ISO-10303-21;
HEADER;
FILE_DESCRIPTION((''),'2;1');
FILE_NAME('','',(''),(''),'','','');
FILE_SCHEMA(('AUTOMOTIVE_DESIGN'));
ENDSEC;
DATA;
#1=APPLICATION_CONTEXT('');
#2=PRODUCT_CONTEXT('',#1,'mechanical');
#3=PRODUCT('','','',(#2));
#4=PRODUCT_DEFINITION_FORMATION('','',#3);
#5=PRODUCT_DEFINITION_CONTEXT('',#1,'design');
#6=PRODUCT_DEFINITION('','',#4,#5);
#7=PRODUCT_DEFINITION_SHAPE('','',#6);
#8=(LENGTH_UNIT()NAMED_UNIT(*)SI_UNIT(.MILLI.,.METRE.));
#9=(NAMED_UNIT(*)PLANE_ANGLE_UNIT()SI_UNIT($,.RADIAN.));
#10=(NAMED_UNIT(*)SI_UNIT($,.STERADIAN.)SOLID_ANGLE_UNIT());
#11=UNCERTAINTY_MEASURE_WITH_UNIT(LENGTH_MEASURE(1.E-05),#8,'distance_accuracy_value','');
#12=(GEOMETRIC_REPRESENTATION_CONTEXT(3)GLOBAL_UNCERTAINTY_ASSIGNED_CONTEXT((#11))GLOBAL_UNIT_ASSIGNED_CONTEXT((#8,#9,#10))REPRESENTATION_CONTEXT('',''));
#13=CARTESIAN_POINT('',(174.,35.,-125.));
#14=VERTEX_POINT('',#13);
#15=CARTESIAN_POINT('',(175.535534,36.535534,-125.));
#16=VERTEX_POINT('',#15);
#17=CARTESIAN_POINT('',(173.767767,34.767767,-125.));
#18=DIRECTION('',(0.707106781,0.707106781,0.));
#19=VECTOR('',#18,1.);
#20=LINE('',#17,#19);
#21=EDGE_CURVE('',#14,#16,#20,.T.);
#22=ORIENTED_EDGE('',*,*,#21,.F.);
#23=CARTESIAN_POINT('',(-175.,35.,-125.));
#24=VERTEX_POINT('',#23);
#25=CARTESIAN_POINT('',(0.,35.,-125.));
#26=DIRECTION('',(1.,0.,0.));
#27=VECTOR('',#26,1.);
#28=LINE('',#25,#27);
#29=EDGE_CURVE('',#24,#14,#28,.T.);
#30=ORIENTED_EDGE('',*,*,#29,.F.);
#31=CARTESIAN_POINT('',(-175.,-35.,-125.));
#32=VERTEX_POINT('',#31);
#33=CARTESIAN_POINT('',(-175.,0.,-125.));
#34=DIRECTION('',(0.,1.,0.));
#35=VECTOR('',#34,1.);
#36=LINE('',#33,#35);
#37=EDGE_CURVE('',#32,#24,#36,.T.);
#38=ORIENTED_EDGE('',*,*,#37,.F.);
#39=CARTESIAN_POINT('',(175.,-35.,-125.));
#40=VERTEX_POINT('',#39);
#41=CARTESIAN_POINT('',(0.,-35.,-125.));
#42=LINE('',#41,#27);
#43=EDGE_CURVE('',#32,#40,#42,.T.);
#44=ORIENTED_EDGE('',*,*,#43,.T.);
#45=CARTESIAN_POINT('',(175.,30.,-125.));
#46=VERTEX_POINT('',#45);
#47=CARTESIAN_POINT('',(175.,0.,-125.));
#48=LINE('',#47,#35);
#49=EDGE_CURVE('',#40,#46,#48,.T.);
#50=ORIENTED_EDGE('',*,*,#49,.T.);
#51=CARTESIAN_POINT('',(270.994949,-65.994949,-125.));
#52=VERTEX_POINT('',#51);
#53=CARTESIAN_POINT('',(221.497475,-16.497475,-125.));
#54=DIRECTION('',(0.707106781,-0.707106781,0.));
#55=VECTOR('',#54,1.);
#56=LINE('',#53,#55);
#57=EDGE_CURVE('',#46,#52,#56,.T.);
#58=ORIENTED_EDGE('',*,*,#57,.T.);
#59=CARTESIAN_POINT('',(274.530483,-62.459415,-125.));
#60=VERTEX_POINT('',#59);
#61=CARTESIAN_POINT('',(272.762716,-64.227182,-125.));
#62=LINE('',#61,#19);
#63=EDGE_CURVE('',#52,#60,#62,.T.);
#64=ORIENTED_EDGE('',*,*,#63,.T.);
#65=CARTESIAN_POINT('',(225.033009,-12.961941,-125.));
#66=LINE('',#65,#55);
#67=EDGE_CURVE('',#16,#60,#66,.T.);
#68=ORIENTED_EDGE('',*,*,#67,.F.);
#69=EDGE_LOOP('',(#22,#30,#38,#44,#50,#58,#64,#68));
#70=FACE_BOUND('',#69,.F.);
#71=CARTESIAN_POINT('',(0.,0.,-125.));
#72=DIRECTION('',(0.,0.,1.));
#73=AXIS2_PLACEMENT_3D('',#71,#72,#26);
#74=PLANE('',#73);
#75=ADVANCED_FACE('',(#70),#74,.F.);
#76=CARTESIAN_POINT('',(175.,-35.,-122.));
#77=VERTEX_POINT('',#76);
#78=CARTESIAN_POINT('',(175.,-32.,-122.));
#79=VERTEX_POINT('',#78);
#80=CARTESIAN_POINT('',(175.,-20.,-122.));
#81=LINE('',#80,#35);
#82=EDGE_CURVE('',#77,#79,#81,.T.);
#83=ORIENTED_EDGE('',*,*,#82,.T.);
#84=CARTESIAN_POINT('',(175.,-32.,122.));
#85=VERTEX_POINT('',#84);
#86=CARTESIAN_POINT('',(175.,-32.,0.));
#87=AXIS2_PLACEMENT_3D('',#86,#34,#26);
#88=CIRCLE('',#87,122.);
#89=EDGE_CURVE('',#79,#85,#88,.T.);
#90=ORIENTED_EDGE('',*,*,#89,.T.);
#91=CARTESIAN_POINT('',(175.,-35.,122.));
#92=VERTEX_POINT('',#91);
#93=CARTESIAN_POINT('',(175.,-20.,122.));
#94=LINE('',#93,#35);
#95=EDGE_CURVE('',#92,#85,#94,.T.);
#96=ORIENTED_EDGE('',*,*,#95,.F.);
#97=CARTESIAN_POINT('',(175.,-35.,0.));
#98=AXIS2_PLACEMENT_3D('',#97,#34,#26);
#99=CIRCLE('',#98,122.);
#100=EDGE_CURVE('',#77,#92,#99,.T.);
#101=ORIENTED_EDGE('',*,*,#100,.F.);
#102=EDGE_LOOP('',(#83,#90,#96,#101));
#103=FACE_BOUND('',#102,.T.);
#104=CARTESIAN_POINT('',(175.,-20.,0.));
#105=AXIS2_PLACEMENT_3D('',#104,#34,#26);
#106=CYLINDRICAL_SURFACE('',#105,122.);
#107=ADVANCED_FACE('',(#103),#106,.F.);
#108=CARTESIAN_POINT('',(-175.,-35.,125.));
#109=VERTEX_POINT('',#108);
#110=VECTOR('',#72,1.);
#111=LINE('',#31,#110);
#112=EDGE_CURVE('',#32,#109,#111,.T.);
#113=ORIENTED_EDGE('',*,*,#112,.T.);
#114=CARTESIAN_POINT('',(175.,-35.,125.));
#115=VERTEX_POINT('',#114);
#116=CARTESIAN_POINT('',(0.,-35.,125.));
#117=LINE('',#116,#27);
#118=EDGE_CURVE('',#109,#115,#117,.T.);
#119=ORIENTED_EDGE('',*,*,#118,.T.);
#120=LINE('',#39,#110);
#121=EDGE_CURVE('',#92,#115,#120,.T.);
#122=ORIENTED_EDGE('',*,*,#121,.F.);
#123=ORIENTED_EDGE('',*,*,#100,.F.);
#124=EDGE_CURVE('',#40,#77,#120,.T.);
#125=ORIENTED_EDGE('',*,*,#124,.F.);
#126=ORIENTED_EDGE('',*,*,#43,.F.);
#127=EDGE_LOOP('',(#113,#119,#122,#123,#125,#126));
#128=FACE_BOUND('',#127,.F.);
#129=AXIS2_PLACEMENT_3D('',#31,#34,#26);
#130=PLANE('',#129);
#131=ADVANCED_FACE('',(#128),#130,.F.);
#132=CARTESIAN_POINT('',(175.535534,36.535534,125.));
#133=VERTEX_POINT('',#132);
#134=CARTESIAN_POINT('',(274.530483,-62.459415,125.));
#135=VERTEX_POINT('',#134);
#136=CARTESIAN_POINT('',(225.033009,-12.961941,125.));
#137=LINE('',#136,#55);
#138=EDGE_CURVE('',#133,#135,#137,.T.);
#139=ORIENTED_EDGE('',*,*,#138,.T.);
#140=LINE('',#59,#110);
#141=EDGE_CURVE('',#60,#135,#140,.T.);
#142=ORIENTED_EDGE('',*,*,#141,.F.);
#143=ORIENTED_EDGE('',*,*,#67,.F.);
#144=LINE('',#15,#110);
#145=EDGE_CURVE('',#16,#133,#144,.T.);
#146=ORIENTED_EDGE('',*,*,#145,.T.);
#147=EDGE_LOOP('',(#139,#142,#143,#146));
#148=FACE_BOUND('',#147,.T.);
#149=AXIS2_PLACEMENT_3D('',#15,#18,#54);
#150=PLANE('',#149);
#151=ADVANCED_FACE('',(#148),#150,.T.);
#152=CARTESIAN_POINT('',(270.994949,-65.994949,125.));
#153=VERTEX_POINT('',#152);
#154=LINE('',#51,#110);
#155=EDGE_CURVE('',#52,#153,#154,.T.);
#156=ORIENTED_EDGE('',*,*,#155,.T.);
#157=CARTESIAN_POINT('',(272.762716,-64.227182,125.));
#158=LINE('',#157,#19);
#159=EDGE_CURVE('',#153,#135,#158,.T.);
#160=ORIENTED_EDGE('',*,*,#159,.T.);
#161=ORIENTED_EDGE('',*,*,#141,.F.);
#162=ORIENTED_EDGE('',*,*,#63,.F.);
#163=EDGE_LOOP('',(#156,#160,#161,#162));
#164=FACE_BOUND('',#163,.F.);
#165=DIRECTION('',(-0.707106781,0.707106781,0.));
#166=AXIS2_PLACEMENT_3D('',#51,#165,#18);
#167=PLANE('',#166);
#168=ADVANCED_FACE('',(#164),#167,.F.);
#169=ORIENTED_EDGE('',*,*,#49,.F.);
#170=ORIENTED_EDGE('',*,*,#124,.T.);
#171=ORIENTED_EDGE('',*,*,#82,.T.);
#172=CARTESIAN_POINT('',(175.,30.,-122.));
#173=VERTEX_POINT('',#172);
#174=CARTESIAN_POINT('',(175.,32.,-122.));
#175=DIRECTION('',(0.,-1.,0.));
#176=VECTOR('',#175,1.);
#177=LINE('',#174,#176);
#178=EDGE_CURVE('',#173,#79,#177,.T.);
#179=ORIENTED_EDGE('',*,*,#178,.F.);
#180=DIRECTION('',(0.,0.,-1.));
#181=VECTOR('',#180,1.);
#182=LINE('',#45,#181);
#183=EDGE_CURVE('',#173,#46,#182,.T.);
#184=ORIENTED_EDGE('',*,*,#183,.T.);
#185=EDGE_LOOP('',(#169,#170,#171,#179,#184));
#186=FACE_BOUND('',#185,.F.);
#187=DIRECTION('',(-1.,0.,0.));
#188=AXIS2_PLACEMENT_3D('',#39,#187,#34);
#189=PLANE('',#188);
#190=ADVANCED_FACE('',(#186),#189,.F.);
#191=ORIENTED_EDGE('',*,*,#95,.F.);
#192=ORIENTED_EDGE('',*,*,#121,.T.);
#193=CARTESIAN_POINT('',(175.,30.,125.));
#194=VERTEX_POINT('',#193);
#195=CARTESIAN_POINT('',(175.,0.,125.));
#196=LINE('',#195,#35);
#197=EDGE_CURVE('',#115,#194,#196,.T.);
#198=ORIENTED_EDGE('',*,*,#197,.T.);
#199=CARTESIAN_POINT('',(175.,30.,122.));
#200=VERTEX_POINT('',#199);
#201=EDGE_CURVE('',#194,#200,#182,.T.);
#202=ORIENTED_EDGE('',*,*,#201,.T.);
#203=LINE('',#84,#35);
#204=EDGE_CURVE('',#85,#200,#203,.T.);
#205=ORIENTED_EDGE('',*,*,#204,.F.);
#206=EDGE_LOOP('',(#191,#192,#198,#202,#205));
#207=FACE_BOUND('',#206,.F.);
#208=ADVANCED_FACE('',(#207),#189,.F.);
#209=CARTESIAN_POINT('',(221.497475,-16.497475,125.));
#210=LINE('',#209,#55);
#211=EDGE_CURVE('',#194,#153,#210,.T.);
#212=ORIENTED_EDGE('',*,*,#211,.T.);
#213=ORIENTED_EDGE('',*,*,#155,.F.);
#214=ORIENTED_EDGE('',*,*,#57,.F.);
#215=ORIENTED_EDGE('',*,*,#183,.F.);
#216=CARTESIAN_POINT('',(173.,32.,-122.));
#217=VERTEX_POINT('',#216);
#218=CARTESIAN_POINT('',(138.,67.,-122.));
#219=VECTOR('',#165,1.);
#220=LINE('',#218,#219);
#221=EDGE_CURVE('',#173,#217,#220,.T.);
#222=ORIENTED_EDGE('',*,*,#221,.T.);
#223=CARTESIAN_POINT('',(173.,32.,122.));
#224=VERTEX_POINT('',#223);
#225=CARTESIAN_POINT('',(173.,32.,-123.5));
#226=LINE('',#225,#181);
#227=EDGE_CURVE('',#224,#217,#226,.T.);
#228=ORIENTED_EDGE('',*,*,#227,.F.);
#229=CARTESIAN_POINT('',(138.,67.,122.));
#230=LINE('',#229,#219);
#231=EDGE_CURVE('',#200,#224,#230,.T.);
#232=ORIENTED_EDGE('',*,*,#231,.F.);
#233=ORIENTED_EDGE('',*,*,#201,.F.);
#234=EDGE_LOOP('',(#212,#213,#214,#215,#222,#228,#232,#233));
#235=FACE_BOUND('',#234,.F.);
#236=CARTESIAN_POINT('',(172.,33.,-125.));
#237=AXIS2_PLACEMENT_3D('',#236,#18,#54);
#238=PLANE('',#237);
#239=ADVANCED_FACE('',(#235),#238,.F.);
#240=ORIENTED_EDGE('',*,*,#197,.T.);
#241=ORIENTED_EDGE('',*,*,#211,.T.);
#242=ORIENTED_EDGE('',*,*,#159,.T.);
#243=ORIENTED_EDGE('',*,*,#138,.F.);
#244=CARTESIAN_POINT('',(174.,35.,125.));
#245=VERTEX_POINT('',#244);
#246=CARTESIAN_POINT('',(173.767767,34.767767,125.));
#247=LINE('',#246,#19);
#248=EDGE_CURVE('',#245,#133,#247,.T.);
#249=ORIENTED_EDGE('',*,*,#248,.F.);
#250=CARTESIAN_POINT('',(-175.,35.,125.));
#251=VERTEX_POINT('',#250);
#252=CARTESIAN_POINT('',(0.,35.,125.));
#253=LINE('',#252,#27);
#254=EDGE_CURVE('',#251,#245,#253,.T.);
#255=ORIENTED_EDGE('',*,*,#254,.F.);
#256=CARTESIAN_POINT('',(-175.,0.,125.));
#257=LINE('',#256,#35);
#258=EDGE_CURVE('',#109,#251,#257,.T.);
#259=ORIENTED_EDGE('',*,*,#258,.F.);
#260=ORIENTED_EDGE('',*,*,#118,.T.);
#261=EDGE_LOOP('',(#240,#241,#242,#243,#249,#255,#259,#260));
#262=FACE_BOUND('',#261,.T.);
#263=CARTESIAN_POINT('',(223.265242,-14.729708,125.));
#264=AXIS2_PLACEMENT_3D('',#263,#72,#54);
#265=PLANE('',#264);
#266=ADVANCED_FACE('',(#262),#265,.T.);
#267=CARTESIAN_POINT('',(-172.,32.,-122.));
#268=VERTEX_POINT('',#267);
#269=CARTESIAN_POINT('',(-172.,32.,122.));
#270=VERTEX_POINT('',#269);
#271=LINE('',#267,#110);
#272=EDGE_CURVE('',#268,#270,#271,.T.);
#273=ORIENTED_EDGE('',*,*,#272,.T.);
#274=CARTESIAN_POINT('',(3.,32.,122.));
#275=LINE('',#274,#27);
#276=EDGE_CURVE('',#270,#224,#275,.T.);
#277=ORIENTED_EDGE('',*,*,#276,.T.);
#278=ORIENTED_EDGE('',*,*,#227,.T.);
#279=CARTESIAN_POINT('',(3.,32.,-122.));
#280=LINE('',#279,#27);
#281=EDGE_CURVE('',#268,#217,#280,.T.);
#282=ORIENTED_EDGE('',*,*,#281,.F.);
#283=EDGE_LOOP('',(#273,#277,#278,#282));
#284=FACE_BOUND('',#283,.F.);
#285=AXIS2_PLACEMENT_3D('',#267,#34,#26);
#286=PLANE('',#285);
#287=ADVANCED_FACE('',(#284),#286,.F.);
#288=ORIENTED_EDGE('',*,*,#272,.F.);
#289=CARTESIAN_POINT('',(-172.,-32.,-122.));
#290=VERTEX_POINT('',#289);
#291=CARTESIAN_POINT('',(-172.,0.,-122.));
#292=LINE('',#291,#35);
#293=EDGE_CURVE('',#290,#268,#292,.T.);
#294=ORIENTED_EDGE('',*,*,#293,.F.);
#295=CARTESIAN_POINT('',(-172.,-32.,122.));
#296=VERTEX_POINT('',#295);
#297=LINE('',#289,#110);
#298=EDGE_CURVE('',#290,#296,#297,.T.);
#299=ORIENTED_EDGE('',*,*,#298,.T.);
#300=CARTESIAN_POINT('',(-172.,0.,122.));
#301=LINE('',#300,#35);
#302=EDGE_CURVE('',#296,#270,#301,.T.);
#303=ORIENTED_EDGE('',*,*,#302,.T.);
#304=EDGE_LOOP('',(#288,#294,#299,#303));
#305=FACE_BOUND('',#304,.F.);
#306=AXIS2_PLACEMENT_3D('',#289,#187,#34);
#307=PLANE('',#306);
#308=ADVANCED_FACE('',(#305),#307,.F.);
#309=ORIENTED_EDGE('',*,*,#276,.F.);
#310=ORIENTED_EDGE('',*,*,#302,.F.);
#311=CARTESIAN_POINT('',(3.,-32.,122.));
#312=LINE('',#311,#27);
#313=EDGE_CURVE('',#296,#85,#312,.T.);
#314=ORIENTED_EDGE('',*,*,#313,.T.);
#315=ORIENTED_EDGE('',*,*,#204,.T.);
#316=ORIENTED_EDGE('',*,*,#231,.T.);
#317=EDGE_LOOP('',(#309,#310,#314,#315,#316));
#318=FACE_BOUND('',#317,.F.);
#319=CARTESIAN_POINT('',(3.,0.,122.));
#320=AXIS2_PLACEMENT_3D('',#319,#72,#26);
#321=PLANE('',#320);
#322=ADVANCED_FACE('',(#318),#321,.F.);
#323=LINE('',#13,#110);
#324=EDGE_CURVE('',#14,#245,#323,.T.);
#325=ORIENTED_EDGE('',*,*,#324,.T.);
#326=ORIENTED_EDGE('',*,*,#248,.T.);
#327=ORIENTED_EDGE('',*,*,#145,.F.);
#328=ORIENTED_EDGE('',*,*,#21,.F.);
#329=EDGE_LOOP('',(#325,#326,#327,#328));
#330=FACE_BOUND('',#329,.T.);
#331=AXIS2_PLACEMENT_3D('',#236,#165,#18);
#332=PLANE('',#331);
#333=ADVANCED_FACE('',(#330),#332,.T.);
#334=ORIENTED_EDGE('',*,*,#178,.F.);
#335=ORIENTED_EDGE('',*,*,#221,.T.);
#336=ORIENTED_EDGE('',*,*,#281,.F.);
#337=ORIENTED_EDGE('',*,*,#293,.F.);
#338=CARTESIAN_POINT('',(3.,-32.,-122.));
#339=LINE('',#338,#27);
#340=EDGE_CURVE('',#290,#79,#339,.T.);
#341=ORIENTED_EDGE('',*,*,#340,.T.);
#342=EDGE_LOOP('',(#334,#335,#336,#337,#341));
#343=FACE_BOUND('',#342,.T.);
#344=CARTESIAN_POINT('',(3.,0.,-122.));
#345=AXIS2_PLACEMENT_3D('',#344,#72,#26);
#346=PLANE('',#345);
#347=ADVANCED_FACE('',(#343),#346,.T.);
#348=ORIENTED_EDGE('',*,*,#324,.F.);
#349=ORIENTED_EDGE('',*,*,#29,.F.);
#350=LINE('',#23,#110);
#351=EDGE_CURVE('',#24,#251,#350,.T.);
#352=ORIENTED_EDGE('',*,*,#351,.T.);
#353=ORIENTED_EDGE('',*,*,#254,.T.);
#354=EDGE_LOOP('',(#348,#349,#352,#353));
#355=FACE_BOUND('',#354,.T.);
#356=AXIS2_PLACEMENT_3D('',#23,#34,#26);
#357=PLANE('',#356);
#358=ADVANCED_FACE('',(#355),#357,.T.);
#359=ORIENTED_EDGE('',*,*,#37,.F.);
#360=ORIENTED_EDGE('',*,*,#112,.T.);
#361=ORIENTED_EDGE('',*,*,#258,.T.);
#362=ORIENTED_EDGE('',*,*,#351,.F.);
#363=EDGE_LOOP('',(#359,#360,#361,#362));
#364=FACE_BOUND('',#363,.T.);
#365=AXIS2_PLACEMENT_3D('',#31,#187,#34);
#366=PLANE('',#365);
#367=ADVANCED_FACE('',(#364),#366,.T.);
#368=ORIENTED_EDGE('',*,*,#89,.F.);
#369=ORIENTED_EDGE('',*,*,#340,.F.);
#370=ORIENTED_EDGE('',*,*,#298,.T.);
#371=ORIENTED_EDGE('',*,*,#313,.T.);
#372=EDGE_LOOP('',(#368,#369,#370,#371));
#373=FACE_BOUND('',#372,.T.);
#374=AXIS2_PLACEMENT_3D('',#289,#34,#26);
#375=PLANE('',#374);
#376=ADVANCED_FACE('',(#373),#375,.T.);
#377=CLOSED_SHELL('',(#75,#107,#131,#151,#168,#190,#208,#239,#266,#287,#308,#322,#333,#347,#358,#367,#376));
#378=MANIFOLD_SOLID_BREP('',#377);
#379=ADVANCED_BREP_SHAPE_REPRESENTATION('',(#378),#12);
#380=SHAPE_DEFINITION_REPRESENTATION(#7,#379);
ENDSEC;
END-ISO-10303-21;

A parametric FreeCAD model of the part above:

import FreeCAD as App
import Part
import Sketcher

V = App.Vector

doc = App.newDocument("Part")
body = doc.addObject("PartDesign::Body", "Body")

sketch1 = body.newObject("Sketcher::SketchObject", "Sketch")
sketch1.AttachmentSupport = (doc.getObject("XY_Plane"), [""])
sketch1.MapMode = "FlatFace"
sketch1.addGeometry([
    Part.LineSegment(V(0, 5, 0), V(0, 0, 0)),
    Part.LineSegment(V(0, 0, 0), V(140, 0, 0)),
    Part.LineSegment(V(140, 0, 0), V(140, 5, 0)),
    Part.LineSegment(V(140, 5, 0), V(0, 5, 0)),
], False)
sketch1.addConstraint([
    Sketcher.Constraint("Coincident", 0, 2, 1, 1),
    Sketcher.Constraint("Coincident", 1, 2, 2, 1),
    Sketcher.Constraint("Coincident", 2, 2, 3, 1),
    Sketcher.Constraint("Coincident", 3, 2, 0, 1),
    Sketcher.Constraint("Vertical", 0),
    Sketcher.Constraint("Horizontal", 1),
    Sketcher.Constraint("Vertical", 2),
    Sketcher.Constraint("Horizontal", 3),
    Sketcher.Constraint("Coincident", 0, 2, -1, 1),
    Sketcher.Constraint("DistanceX", 1, 1, 1, 2, 140.0),
    Sketcher.Constraint("DistanceY", 0, 2, 0, 1, 5.0),
])
pad1 = body.newObject("PartDesign::Pad", "Pad")
pad1.Profile = sketch1
pad1.Length = 250
body2 = doc.addObject("PartDesign::Body", "Body001")
doc.recompute()

body.Placement = App.Placement(V(172, 33, -125), App.Rotation(V(0, 0, 1), 315))
boolean = body2.newObject("PartDesign::Boolean", "Boolean")
boolean.Type = "Fuse"
boolean.addObjects([body])
body3 = doc.addObject("PartDesign::Body", "Body002")

sketch2 = body3.newObject("Sketcher::SketchObject", "Sketch001")
sketch2.AttachmentSupport = (doc.getObject("XY_Plane002"), [""])
sketch2.MapMode = "FlatFace"
sketch2.addGeometry(Part.Circle(V(0, 0, 0), V(0, 0, 1), 122), False)
sketch2.addConstraint([
    Sketcher.Constraint("Coincident", 0, 3, -1, 1),
    Sketcher.Constraint("Diameter", 0, 244.0),
])
pad2 = body3.newObject("PartDesign::Pad", "Pad001")
pad2.Profile = sketch2
pad2.Length = 20
body4 = doc.addObject("PartDesign::Body", "Body003")
doc.recompute()

body3.Placement = App.Placement(V(0, 0, 0), App.Rotation(V(1, 0, 0), 90))
boolean2 = body4.newObject("PartDesign::Boolean", "Boolean001")
boolean2.Type = "Fuse"
boolean2.addObjects([body3])
body5 = doc.addObject("PartDesign::Body", "Body004")
doc.recompute()

body4.Placement = App.Placement(V(175, -20, 0), App.Rotation(V(0, 0, 1), 0))
boolean3 = body5.newObject("PartDesign::Boolean", "Boolean002")
boolean3.Type = "Fuse"
boolean3.addObjects([body4])
body6 = doc.addObject("PartDesign::Body", "Body005")

sketch3 = body6.newObject("Sketcher::SketchObject", "Sketch002")
sketch3.AttachmentSupport = (doc.getObject("XY_Plane005"), [""])
sketch3.MapMode = "FlatFace"
sketch3.AttachmentOffset = App.Placement(V(0, 0, -122), App.Rotation())
sketch3.addGeometry([
    Part.LineSegment(V(-172, 32, 0), V(-172, -32, 0)),
    Part.LineSegment(V(-172, -32, 0), V(178, -32, 0)),
    Part.LineSegment(V(178, -32, 0), V(178, 32, 0)),
    Part.LineSegment(V(178, 32, 0), V(-172, 32, 0)),
], False)
sketch3.addConstraint([
    Sketcher.Constraint("Coincident", 0, 2, 1, 1),
    Sketcher.Constraint("Coincident", 1, 2, 2, 1),
    Sketcher.Constraint("Coincident", 2, 2, 3, 1),
    Sketcher.Constraint("Coincident", 3, 2, 0, 1),
    Sketcher.Constraint("Vertical", 0),
    Sketcher.Constraint("Horizontal", 1),
    Sketcher.Constraint("Vertical", 2),
    Sketcher.Constraint("Horizontal", 3),
    Sketcher.Constraint("DistanceX", 1, 1, 1, 2, 350.0),
    Sketcher.Constraint("DistanceY", 0, 2, 0, 1, 64.0),
    Sketcher.Constraint("DistanceX", 0, 2, -1, 1, 172.0),
    Sketcher.Constraint("DistanceY", 0, 2, -1, 1, 32.0),
])
pad3 = body6.newObject("PartDesign::Pad", "Pad002")
pad3.Profile = sketch3
pad3.Length = 244
body7 = doc.addObject("PartDesign::Body", "Body006")

sketch4 = body7.newObject("Sketcher::SketchObject", "Sketch003")
sketch4.AttachmentSupport = (doc.getObject("XY_Plane006"), [""])
sketch4.MapMode = "FlatFace"
sketch4.AttachmentOffset = App.Placement(V(0, 0, -125), App.Rotation())
sketch4.addGeometry([
    Part.LineSegment(V(-175, 35, 0), V(-175, -35, 0)),
    Part.LineSegment(V(-175, -35, 0), V(175, -35, 0)),
    Part.LineSegment(V(175, -35, 0), V(175, 35, 0)),
    Part.LineSegment(V(175, 35, 0), V(-175, 35, 0)),
], False)
sketch4.addConstraint([
    Sketcher.Constraint("Coincident", 0, 2, 1, 1),
    Sketcher.Constraint("Coincident", 1, 2, 2, 1),
    Sketcher.Constraint("Coincident", 2, 2, 3, 1),
    Sketcher.Constraint("Coincident", 3, 2, 0, 1),
    Sketcher.Constraint("Vertical", 0),
    Sketcher.Constraint("Horizontal", 1),
    Sketcher.Constraint("Vertical", 2),
    Sketcher.Constraint("Horizontal", 3),
    Sketcher.Constraint("Symmetric", 0, 2, 2, 2, -1, 1),
    Sketcher.Constraint("DistanceX", 1, 1, 1, 2, 350.0),
    Sketcher.Constraint("DistanceY", 0, 2, 0, 1, 70.0),
])
pad4 = body7.newObject("PartDesign::Pad", "Pad003")
pad4.Profile = sketch4
pad4.Length = 250
doc.recompute()

boolean4 = body7.newObject("PartDesign::Boolean", "Boolean003")
boolean4.Type = "Cut"
boolean4.addObjects([body6])
doc.recompute()

boolean5 = body7.newObject("PartDesign::Boolean", "Boolean004")
boolean5.Type = "Cut"
boolean5.addObjects([body5])
doc.recompute()

boolean6 = body7.newObject("PartDesign::Boolean", "Boolean005")
boolean6.Type = "Fuse"
boolean6.addObjects([body2])

doc.recompute()
